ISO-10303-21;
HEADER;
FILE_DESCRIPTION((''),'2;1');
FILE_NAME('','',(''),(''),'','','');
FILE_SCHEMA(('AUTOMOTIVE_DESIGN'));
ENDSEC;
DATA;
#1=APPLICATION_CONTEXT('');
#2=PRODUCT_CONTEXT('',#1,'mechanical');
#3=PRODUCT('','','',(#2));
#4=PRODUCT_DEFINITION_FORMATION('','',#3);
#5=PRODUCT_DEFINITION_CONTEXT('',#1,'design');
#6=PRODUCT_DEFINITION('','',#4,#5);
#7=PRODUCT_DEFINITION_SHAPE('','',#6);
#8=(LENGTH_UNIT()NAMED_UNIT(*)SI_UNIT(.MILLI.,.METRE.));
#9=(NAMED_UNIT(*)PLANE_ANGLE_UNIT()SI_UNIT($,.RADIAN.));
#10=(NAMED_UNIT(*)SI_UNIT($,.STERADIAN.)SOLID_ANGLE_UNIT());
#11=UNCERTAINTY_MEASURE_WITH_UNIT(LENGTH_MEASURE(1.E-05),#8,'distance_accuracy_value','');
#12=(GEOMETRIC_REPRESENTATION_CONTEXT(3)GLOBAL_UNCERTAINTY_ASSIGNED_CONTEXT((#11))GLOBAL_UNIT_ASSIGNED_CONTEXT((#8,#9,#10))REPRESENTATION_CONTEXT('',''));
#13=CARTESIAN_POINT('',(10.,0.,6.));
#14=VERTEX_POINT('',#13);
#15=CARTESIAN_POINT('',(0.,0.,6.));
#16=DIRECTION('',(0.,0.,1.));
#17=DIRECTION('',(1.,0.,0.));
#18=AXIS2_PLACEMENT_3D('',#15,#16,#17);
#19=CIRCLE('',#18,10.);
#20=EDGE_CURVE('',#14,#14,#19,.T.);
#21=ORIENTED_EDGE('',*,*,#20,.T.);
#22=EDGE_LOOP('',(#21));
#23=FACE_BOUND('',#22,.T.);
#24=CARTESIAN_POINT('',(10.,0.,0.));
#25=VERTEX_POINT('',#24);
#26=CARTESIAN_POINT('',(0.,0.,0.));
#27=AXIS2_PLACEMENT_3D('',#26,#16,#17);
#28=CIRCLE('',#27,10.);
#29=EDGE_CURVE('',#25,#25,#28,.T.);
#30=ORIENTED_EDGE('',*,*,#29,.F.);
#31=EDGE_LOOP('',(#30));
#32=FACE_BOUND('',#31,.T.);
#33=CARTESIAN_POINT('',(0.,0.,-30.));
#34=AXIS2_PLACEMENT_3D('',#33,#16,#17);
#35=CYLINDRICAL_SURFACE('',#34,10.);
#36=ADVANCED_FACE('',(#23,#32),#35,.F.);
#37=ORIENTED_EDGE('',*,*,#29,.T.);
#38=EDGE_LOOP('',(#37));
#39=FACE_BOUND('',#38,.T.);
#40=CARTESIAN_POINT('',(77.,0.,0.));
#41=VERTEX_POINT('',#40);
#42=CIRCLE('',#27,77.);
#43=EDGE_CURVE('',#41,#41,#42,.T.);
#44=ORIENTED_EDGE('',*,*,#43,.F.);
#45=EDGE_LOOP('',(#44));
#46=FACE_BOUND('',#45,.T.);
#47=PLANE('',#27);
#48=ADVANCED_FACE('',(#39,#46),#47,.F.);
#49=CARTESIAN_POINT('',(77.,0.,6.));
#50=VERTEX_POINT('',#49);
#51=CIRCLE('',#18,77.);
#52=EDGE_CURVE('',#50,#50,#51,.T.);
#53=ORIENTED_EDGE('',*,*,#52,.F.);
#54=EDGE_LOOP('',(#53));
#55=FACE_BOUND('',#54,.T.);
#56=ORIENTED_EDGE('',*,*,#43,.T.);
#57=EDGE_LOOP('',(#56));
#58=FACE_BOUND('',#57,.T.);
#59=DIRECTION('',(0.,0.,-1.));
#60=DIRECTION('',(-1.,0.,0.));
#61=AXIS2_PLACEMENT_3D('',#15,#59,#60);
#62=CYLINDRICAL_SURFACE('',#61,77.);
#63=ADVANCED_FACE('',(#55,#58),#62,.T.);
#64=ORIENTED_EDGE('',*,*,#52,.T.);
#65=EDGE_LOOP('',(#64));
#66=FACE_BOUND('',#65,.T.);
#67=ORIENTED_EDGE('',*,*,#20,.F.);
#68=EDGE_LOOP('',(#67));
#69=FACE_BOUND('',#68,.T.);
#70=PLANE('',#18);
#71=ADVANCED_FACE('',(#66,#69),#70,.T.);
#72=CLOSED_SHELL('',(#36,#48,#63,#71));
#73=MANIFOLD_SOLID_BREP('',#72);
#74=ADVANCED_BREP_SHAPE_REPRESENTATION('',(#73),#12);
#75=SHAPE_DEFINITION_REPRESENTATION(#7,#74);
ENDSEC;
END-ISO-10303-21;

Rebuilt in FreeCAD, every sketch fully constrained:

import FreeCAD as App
import Part
import Sketcher
Q = App.Units.Quantity

doc = App.newDocument("Part")
body = doc.addObject("PartDesign::Body", "Body")

# Sketch on XY plane
sketch1 = body.newObject("Sketcher::SketchObject", "Sketch")
sketch1.AttachmentSupport = (doc.getObject("XY_Plane"), [""])
sketch1.MapMode = "FlatFace"
sketch1.addGeometry(Part.Circle(App.Vector(0, 0, 0), App.Vector(0, 0, 1), 77), False)
sketch1.addConstraint(Sketcher.Constraint("Coincident", 0, 3, -1, 1))
sketch1.addConstraint(Sketcher.Constraint("Diameter", 0, Q("154 mm")))
pad1 = body.newObject("PartDesign::Pad", "Pad")
pad1.Profile = sketch1
pad1.Length = 6

# Sketch on XY plane
sketch2 = body.newObject("Sketcher::SketchObject", "Sketch001")
sketch2.AttachmentSupport = (doc.getObject("XY_Plane"), [""])
sketch2.MapMode = "FlatFace"
sketch2.AttachmentOffset = App.Placement(App.Vector(0, 0, 6), App.Rotation())
sketch2.addGeometry(Part.Circle(App.Vector(0, 0, 0), App.Vector(0, 0, 1), 10), False)
sketch2.addConstraint(Sketcher.Constraint("Coincident", 0, 3, -1, 1))
sketch2.addConstraint(Sketcher.Constraint("Diameter", 0, Q("20 mm")))
pocket1 = body.newObject("PartDesign::Pocket", "Pocket")
pocket1.Profile = sketch2
pocket1.Length = 36

doc.recompute()
